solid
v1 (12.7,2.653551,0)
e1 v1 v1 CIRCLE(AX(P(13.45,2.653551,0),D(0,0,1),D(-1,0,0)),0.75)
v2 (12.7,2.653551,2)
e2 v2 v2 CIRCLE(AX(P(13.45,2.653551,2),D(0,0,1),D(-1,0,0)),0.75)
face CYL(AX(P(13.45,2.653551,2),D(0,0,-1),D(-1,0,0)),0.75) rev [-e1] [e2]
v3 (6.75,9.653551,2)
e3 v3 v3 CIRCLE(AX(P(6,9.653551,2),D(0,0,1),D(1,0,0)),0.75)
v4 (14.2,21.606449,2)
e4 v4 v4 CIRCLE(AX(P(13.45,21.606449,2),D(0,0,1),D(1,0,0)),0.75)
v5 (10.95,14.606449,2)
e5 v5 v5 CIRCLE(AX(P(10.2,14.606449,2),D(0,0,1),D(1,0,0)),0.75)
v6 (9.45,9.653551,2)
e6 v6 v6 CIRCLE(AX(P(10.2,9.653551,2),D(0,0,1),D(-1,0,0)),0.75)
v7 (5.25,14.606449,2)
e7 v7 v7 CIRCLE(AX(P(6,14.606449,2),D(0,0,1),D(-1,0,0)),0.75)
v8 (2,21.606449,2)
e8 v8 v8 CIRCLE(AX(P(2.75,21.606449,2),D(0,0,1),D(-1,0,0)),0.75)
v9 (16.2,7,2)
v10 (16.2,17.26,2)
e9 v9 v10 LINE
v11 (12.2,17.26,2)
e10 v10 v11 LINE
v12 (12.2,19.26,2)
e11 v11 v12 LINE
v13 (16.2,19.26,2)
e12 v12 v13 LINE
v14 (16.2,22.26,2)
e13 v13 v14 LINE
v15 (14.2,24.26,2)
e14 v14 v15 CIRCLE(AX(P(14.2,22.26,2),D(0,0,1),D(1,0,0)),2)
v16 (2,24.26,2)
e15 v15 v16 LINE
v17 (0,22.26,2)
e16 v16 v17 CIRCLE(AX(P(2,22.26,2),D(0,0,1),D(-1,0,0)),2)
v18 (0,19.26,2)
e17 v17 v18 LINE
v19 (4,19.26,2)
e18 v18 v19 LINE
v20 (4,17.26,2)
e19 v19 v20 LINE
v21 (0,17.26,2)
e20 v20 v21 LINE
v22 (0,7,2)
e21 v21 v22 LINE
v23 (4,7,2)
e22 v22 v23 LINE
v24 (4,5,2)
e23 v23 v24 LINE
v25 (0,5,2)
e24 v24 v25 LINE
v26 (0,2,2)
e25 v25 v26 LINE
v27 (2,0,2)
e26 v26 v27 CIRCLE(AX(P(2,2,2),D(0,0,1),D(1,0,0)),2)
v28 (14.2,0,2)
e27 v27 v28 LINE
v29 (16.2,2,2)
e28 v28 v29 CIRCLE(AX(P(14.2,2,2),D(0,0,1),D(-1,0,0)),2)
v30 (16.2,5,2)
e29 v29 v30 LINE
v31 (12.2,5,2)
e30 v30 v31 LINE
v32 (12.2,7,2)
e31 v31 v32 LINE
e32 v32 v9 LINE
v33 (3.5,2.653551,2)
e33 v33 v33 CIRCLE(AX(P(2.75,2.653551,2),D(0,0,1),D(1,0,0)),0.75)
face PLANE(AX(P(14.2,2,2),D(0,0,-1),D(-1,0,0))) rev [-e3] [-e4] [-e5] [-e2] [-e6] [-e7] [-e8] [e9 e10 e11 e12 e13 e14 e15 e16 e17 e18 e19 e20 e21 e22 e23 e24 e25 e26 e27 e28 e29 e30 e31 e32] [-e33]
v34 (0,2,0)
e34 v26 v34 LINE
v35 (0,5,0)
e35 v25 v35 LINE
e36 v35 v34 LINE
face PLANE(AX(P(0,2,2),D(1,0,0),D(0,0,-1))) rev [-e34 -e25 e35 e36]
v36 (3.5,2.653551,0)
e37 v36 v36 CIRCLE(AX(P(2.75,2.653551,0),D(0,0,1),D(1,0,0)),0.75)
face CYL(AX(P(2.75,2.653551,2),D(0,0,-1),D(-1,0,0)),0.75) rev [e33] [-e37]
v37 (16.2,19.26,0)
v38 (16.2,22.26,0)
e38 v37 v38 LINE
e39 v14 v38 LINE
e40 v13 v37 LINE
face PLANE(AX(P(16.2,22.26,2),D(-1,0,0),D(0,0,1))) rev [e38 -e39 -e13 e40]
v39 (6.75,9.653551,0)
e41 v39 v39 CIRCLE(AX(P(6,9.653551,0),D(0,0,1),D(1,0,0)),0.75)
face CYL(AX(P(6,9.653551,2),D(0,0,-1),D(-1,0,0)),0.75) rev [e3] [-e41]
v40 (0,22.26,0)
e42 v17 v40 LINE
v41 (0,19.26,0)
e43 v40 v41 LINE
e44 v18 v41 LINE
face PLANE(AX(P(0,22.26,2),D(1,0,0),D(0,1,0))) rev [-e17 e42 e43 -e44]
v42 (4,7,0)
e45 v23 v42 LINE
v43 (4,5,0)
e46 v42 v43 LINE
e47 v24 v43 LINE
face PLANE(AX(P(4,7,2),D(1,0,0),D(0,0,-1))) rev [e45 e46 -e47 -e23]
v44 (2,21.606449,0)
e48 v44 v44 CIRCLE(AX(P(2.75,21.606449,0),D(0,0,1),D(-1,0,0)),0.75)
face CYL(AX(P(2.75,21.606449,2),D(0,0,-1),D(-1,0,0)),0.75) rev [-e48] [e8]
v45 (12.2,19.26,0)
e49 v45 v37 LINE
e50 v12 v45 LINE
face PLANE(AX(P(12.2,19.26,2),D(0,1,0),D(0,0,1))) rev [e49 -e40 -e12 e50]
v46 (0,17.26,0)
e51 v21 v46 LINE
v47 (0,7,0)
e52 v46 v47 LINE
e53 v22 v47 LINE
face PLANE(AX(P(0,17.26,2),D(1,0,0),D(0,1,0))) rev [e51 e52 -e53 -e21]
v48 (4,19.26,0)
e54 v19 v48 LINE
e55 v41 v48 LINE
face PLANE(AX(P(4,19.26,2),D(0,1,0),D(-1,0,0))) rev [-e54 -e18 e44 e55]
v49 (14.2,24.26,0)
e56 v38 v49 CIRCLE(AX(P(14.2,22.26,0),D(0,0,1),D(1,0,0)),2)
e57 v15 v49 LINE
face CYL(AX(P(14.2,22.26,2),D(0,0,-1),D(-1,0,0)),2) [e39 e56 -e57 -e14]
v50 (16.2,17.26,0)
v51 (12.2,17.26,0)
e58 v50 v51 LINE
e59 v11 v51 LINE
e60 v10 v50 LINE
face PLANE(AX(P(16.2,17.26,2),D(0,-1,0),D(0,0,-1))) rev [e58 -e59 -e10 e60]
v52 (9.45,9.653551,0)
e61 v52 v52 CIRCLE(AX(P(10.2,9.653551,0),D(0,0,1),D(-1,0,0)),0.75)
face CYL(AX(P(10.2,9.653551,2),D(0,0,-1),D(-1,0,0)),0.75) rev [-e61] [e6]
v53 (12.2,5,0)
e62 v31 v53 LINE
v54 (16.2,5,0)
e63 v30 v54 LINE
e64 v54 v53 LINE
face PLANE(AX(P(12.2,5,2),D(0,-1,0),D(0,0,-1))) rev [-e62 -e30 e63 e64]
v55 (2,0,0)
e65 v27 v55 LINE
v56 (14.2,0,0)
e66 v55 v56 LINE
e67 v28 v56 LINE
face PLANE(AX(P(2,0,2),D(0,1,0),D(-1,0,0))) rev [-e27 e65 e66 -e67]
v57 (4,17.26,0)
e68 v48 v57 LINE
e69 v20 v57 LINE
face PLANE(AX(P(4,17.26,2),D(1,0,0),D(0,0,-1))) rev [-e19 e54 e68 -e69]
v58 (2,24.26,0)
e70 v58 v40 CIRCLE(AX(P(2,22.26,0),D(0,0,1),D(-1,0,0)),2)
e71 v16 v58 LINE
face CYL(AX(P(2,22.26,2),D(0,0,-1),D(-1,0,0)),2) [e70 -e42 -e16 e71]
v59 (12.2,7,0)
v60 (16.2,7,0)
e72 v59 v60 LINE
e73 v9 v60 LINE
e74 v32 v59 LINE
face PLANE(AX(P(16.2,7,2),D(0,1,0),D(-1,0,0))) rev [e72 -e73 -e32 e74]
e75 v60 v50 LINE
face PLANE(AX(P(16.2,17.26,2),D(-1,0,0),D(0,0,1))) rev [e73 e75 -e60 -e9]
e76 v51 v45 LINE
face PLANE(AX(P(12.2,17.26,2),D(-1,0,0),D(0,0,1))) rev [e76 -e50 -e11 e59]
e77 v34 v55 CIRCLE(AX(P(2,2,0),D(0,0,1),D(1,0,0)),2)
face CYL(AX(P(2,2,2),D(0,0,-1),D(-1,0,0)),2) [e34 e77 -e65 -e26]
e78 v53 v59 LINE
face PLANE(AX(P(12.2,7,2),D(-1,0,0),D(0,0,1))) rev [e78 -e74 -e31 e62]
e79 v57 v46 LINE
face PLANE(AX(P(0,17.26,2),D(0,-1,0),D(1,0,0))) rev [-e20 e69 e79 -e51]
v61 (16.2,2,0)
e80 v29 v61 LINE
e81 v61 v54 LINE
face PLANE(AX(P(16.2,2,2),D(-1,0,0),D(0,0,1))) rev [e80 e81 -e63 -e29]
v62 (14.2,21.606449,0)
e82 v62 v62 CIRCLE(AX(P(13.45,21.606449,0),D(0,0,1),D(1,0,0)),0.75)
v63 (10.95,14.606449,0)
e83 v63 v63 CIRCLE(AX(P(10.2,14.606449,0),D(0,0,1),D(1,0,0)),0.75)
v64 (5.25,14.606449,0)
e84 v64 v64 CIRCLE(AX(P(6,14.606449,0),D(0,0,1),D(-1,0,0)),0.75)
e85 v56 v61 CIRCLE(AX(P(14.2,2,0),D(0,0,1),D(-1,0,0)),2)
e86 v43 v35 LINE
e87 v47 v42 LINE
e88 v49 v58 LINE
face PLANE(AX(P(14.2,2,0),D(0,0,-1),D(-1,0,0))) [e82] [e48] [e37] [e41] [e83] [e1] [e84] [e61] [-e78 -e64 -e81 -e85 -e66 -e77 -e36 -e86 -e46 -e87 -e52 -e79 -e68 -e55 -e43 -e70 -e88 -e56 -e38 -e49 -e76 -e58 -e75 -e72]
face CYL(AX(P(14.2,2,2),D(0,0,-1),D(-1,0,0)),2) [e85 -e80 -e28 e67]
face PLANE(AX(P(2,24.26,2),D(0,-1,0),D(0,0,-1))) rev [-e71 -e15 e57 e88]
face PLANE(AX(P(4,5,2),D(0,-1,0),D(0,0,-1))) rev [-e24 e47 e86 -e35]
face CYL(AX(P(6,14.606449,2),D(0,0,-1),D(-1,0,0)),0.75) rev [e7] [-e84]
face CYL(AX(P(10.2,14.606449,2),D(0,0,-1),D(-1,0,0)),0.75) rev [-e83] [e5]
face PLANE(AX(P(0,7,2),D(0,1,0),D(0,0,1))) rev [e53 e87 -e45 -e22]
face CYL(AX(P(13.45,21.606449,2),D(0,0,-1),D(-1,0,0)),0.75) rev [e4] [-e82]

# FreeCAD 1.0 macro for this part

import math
import FreeCAD as App
import Part
import Sketcher
from FreeCAD import Vector

doc = App.newDocument("Part")
body = doc.addObject("PartDesign::Body", "Body")

# Sketch on XY plane
sketch1 = body.newObject("Sketcher::SketchObject", "Sketch")
sketch1.AttachmentSupport = (doc.getObject("XY_Plane"), [""])
sketch1.MapMode = "FlatFace"
sketch1.addGeometry(Part.LineSegment(Vector(16.2, 7, 0), Vector(16.2, 17.26, 0)), False)
sketch1.addGeometry(Part.LineSegment(Vector(16.2, 17.26, 0), Vector(12.2, 17.26, 0)), False)
sketch1.addGeometry(Part.LineSegment(Vector(12.2, 17.26, 0), Vector(12.2, 19.26, 0)), False)
sketch1.addGeometry(Part.LineSegment(Vector(12.2, 19.26, 0), Vector(16.2, 19.26, 0)), False)
sketch1.addGeometry(Part.LineSegment(Vector(16.2, 19.26, 0), Vector(16.2, 22.26, 0)), False)
sketch1.addGeometry(Part.ArcOfCircle(Part.Circle(Vector(14.2, 22.26, 0), Vector(0, 0, 1), 2), math.radians(0), math.radians(90)), False)
sketch1.addGeometry(Part.LineSegment(Vector(14.2, 24.26, 0), Vector(2, 24.26, 0)), False)
sketch1.addGeometry(Part.ArcOfCircle(Part.Circle(Vector(2, 22.26, 0), Vector(0, 0, 1), 2), math.radians(90), math.radians(180)), False)
sketch1.addGeometry(Part.LineSegment(Vector(0, 22.26, 0), Vector(0, 19.26, 0)), False)
sketch1.addGeometry(Part.LineSegment(Vector(0, 19.26, 0), Vector(4, 19.26, 0)), False)
sketch1.addGeometry(Part.LineSegment(Vector(4, 19.26, 0), Vector(4, 17.26, 0)), False)
sketch1.addGeometry(Part.LineSegment(Vector(4, 17.26, 0), Vector(0, 17.26, 0)), False)
sketch1.addGeometry(Part.LineSegment(Vector(0, 17.26, 0), Vector(0, 7, 0)), False)
sketch1.addGeometry(Part.LineSegment(Vector(0, 7, 0), Vector(4, 7, 0)), False)
sketch1.addGeometry(Part.LineSegment(Vector(4, 7, 0), Vector(4, 5, 0)), False)
sketch1.addGeometry(Part.LineSegment(Vector(4, 5, 0), Vector(0, 5, 0)), False)
sketch1.addGeometry(Part.LineSegment(Vector(0, 5, 0), Vector(0, 2, 0)), False)
sketch1.addGeometry(Part.ArcOfCircle(Part.Circle(Vector(2, 2, 0), Vector(0, 0, 1), 2), math.radians(-180), math.radians(-90)), False)
sketch1.addGeometry(Part.LineSegment(Vector(2, 0, 0), Vector(14.2, 0, 0)), False)
sketch1.addGeometry(Part.ArcOfCircle(Part.Circle(Vector(14.2, 2, 0), Vector(0, 0, 1), 2), math.radians(-90), math.radians(0)), False)
sketch1.addGeometry(Part.LineSegment(Vector(16.2, 2, 0), Vector(16.2, 5, 0)), False)
sketch1.addGeometry(Part.LineSegment(Vector(16.2, 5, 0), Vector(12.2, 5, 0)), False)
sketch1.addGeometry(Part.LineSegment(Vector(12.2, 5, 0), Vector(12.2, 7, 0)), False)
sketch1.addGeometry(Part.LineSegment(Vector(12.2, 7, 0), Vector(16.2, 7, 0)), False)
sketch1.addGeometry(Part.Circle(Vector(13.45, 2.653551, 0), Vector(0, 0, 1), 0.75), False)
sketch1.addGeometry(Part.Circle(Vector(10.2, 9.653551, 0), Vector(0, 0, 1), 0.75), False)
sketch1.addGeometry(Part.Circle(Vector(2.75, 2.653551, 0), Vector(0, 0, 1), 0.75), False)
sketch1.addGeometry(Part.Circle(Vector(6, 9.653551, 0), Vector(0, 0, 1), 0.75), False)
sketch1.addGeometry(Part.Circle(Vector(10.2, 14.606449, 0), Vector(0, 0, 1), 0.75), False)
sketch1.addGeometry(Part.Circle(Vector(13.45, 21.606449, 0), Vector(0, 0, 1), 0.75), False)
sketch1.addGeometry(Part.Circle(Vector(6, 14.606449, 0), Vector(0, 0, 1), 0.75), False)
sketch1.addGeometry(Part.Circle(Vector(2.75, 21.606449, 0), Vector(0, 0, 1), 0.75), False)
sketch1.addConstraint(Sketcher.Constraint("Coincident", 0, 2, 1, 1))
sketch1.addConstraint(Sketcher.Constraint("Coincident", 1, 2, 2, 1))
sketch1.addConstraint(Sketcher.Constraint("Coincident", 2, 2, 3, 1))
sketch1.addConstraint(Sketcher.Constraint("Coincident", 3, 2, 4, 1))
sketch1.addConstraint(Sketcher.Constraint("Tangent", 4, 2, 5, 1))
sketch1.addConstraint(Sketcher.Constraint("Tangent", 5, 2, 6, 1))
sketch1.addConstraint(Sketcher.Constraint("Tangent", 6, 2, 7, 1))
sketch1.addConstraint(Sketcher.Constraint("Tangent", 7, 2, 8, 1))
sketch1.addConstraint(Sketcher.Constraint("Coincident", 8, 2, 9, 1))
sketch1.addConstraint(Sketcher.Constraint("Coincident", 9, 2, 10, 1))
sketch1.addConstraint(Sketcher.Constraint("Coincident", 10, 2, 11, 1))
sketch1.addConstraint(Sketcher.Constraint("Coincident", 11, 2, 12, 1))
sketch1.addConstraint(Sketcher.Constraint("Coincident", 12, 2, 13, 1))
sketch1.addConstraint(Sketcher.Constraint("Coincident", 13, 2, 14, 1))
sketch1.addConstraint(Sketcher.Constraint("Coincident", 14, 2, 15, 1))
sketch1.addConstraint(Sketcher.Constraint("Coincident", 15, 2, 16, 1))
sketch1.addConstraint(Sketcher.Constraint("Tangent", 16, 2, 17, 1))
sketch1.addConstraint(Sketcher.Constraint("Tangent", 17, 2, 18, 1))
sketch1.addConstraint(Sketcher.Constraint("Tangent", 18, 2, 19, 1))
sketch1.addConstraint(Sketcher.Constraint("Tangent", 19, 2, 20, 1))
sketch1.addConstraint(Sketcher.Constraint("Coincident", 20, 2, 21, 1))
sketch1.addConstraint(Sketcher.Constraint("Coincident", 21, 2, 22, 1))
sketch1.addConstraint(Sketcher.Constraint("Coincident", 22, 2, 23, 1))
sketch1.addConstraint(Sketcher.Constraint("Coincident", 23, 2, 0, 1))
sketch1.addConstraint(Sketcher.Constraint("Vertical", 0))
sketch1.addConstraint(Sketcher.Constraint("Horizontal", 1))
sketch1.addConstraint(Sketcher.Constraint("Vertical", 2))
sketch1.addConstraint(Sketcher.Constraint("Horizontal", 3))
sketch1.addConstraint(Sketcher.Constraint("Vertical", 4))
sketch1.addConstraint(Sketcher.Constraint("Horizontal", 6))
sketch1.addConstraint(Sketcher.Constraint("Vertical", 8))
sketch1.addConstraint(Sketcher.Constraint("Horizontal", 9))
sketch1.addConstraint(Sketcher.Constraint("Vertical", 10))
sketch1.addConstraint(Sketcher.Constraint("Horizontal", 11))
sketch1.addConstraint(Sketcher.Constraint("Vertical", 12))
sketch1.addConstraint(Sketcher.Constraint("Horizontal", 13))
sketch1.addConstraint(Sketcher.Constraint("Vertical", 14))
sketch1.addConstraint(Sketcher.Constraint("Horizontal", 15))
sketch1.addConstraint(Sketcher.Constraint("Vertical", 16))
sketch1.addConstraint(Sketcher.Constraint("Horizontal", 18))
sketch1.addConstraint(Sketcher.Constraint("Vertical", 20))
sketch1.addConstraint(Sketcher.Constraint("Horizontal", 21))
sketch1.addConstraint(Sketcher.Constraint("Vertical", 22))
sketch1.addConstraint(Sketcher.Constraint("Horizontal", 23))
sketch1.addConstraint(Sketcher.Constraint("Equal", 5, 7))
sketch1.addConstraint(Sketcher.Constraint("Equal", 7, 17))
sketch1.addConstraint(Sketcher.Constraint("Equal", 17, 19))
sketch1.addConstraint(Sketcher.Constraint("Equal", 24, 25))
sketch1.addConstraint(Sketcher.Constraint("Equal", 25, 26))
sketch1.addConstraint(Sketcher.Constraint("Equal", 26, 27))
sketch1.addConstraint(Sketcher.Constraint("Equal", 27, 28))
sketch1.addConstraint(Sketcher.Constraint("Equal", 28, 29))
sketch1.addConstraint(Sketcher.Constraint("Equal", 29, 30))
sketch1.addConstraint(Sketcher.Constraint("Equal", 30, 31))
sketch1.addConstraint(Sketcher.Constraint("PointOnObject", 7, 2, -2))
sketch1.addConstraint(Sketcher.Constraint("PointOnObject", 11, 2, -2))
sketch1.addConstraint(Sketcher.Constraint("PointOnObject", 15, 2, -2))
sketch1.addConstraint(Sketcher.Constraint("PointOnObject", 17, 2, -1))
sketch1.addConstraint(Sketcher.Constraint("Horizontal", 24, 3, 26, 3))
sketch1.addConstraint(Sketcher.Constraint("Horizontal", 25, 3, 27, 3))
sketch1.addConstraint(Sketcher.Constraint("Horizontal", 28, 3, 30, 3))
sketch1.addConstraint(Sketcher.Constraint("Horizontal", 29, 3, 31, 3))
sketch1.addConstraint(Sketcher.Constraint("Horizontal", 3, 2, 8, 2))
sketch1.addConstraint(Sketcher.Constraint("Horizontal", 1, 2, 10, 2))
sketch1.addConstraint(Sketcher.Constraint("Horizontal", 15, 2, 20, 2))
sketch1.addConstraint(Sketcher.Constraint("Horizontal", 13, 2, 22, 2))
sketch1.addConstraint(Sketcher.Constraint("Vertical", 5, 3, 19, 3))
sketch1.addConstraint(Sketcher.Constraint("Vertical", 25, 3, 28, 3))
sketch1.addConstraint(Sketcher.Constraint("Vertical", 24, 3, 29, 3))
sketch1.addConstraint(Sketcher.Constraint("Vertical", 27, 3, 30, 3))
sketch1.addConstraint(Sketcher.Constraint("Vertical", 26, 3, 31, 3))
sketch1.addConstraint(Sketcher.Constraint("Vertical", 0, 2, 3, 2))
sketch1.addConstraint(Sketcher.Constraint("Vertical", 10, 2, 13, 2))
sketch1.addConstraint(Sketcher.Constraint("Vertical", 2, 2, 21, 2))
sketch1.addConstraint(Sketcher.Constraint("Equal", 3, 9))
sketch1.addConstraint(Sketcher.Constraint("Equal", 10, 14))
sketch1.addConstraint(Sketcher.Constraint("Equal", 8, 16))
sketch1.addConstraint(Sketcher.Constraint("Radius", 5, 2.0))
sketch1.addConstraint(Sketcher.Constraint("Diameter", 24, 1.5))
sketch1.addConstraint(Sketcher.Constraint("DistanceX", 1, 2, 1, 1, 4.0))
sketch1.addConstraint(Sketcher.Constraint("DistanceY", 2, 1, 2, 2, 2.0))
sketch1.addConstraint(Sketcher.Constraint("DistanceY", 4, 1, 4, 2, 3.0))
sketch1.addConstraint(Sketcher.Constraint("DistanceX", 6, 2, 6, 1, 12.2))
sketch1.addConstraint(Sketcher.Constraint("DistanceX", -1, 1, 27, 3, 6.0))
sketch1.addConstraint(Sketcher.Constraint("DistanceY", 24, 3, 25, 3, 7.0))
sketch1.addConstraint(Sketcher.Constraint("DistanceX", 25, 3, 19, 3, 4.0))
sketch1.addConstraint(Sketcher.Constraint("DistanceY", 28, 3, 29, 3, 7.0))
sketch1.addConstraint(Sketcher.Constraint("DistanceY", 0, 1, 0, 2, 10.26))
sketch1.addConstraint(Sketcher.Constraint("DistanceX", 26, 3, 24, 3, 10.7))
sketch1.addConstraint(Sketcher.Constraint("DistanceX", -1, 1, 24, 3, 13.45))
sketch1.addConstraint(Sketcher.Constraint("DistanceY", -1, 1, 24, 3, 2.653551))
sketch1.addConstraint(Sketcher.Constraint("DistanceY", -1, 1, 28, 3, 14.606449))
pad1 = body.newObject("PartDesign::Pad", "Pad")
pad1.Profile = sketch1
pad1.Length = 2

doc.recompute()
